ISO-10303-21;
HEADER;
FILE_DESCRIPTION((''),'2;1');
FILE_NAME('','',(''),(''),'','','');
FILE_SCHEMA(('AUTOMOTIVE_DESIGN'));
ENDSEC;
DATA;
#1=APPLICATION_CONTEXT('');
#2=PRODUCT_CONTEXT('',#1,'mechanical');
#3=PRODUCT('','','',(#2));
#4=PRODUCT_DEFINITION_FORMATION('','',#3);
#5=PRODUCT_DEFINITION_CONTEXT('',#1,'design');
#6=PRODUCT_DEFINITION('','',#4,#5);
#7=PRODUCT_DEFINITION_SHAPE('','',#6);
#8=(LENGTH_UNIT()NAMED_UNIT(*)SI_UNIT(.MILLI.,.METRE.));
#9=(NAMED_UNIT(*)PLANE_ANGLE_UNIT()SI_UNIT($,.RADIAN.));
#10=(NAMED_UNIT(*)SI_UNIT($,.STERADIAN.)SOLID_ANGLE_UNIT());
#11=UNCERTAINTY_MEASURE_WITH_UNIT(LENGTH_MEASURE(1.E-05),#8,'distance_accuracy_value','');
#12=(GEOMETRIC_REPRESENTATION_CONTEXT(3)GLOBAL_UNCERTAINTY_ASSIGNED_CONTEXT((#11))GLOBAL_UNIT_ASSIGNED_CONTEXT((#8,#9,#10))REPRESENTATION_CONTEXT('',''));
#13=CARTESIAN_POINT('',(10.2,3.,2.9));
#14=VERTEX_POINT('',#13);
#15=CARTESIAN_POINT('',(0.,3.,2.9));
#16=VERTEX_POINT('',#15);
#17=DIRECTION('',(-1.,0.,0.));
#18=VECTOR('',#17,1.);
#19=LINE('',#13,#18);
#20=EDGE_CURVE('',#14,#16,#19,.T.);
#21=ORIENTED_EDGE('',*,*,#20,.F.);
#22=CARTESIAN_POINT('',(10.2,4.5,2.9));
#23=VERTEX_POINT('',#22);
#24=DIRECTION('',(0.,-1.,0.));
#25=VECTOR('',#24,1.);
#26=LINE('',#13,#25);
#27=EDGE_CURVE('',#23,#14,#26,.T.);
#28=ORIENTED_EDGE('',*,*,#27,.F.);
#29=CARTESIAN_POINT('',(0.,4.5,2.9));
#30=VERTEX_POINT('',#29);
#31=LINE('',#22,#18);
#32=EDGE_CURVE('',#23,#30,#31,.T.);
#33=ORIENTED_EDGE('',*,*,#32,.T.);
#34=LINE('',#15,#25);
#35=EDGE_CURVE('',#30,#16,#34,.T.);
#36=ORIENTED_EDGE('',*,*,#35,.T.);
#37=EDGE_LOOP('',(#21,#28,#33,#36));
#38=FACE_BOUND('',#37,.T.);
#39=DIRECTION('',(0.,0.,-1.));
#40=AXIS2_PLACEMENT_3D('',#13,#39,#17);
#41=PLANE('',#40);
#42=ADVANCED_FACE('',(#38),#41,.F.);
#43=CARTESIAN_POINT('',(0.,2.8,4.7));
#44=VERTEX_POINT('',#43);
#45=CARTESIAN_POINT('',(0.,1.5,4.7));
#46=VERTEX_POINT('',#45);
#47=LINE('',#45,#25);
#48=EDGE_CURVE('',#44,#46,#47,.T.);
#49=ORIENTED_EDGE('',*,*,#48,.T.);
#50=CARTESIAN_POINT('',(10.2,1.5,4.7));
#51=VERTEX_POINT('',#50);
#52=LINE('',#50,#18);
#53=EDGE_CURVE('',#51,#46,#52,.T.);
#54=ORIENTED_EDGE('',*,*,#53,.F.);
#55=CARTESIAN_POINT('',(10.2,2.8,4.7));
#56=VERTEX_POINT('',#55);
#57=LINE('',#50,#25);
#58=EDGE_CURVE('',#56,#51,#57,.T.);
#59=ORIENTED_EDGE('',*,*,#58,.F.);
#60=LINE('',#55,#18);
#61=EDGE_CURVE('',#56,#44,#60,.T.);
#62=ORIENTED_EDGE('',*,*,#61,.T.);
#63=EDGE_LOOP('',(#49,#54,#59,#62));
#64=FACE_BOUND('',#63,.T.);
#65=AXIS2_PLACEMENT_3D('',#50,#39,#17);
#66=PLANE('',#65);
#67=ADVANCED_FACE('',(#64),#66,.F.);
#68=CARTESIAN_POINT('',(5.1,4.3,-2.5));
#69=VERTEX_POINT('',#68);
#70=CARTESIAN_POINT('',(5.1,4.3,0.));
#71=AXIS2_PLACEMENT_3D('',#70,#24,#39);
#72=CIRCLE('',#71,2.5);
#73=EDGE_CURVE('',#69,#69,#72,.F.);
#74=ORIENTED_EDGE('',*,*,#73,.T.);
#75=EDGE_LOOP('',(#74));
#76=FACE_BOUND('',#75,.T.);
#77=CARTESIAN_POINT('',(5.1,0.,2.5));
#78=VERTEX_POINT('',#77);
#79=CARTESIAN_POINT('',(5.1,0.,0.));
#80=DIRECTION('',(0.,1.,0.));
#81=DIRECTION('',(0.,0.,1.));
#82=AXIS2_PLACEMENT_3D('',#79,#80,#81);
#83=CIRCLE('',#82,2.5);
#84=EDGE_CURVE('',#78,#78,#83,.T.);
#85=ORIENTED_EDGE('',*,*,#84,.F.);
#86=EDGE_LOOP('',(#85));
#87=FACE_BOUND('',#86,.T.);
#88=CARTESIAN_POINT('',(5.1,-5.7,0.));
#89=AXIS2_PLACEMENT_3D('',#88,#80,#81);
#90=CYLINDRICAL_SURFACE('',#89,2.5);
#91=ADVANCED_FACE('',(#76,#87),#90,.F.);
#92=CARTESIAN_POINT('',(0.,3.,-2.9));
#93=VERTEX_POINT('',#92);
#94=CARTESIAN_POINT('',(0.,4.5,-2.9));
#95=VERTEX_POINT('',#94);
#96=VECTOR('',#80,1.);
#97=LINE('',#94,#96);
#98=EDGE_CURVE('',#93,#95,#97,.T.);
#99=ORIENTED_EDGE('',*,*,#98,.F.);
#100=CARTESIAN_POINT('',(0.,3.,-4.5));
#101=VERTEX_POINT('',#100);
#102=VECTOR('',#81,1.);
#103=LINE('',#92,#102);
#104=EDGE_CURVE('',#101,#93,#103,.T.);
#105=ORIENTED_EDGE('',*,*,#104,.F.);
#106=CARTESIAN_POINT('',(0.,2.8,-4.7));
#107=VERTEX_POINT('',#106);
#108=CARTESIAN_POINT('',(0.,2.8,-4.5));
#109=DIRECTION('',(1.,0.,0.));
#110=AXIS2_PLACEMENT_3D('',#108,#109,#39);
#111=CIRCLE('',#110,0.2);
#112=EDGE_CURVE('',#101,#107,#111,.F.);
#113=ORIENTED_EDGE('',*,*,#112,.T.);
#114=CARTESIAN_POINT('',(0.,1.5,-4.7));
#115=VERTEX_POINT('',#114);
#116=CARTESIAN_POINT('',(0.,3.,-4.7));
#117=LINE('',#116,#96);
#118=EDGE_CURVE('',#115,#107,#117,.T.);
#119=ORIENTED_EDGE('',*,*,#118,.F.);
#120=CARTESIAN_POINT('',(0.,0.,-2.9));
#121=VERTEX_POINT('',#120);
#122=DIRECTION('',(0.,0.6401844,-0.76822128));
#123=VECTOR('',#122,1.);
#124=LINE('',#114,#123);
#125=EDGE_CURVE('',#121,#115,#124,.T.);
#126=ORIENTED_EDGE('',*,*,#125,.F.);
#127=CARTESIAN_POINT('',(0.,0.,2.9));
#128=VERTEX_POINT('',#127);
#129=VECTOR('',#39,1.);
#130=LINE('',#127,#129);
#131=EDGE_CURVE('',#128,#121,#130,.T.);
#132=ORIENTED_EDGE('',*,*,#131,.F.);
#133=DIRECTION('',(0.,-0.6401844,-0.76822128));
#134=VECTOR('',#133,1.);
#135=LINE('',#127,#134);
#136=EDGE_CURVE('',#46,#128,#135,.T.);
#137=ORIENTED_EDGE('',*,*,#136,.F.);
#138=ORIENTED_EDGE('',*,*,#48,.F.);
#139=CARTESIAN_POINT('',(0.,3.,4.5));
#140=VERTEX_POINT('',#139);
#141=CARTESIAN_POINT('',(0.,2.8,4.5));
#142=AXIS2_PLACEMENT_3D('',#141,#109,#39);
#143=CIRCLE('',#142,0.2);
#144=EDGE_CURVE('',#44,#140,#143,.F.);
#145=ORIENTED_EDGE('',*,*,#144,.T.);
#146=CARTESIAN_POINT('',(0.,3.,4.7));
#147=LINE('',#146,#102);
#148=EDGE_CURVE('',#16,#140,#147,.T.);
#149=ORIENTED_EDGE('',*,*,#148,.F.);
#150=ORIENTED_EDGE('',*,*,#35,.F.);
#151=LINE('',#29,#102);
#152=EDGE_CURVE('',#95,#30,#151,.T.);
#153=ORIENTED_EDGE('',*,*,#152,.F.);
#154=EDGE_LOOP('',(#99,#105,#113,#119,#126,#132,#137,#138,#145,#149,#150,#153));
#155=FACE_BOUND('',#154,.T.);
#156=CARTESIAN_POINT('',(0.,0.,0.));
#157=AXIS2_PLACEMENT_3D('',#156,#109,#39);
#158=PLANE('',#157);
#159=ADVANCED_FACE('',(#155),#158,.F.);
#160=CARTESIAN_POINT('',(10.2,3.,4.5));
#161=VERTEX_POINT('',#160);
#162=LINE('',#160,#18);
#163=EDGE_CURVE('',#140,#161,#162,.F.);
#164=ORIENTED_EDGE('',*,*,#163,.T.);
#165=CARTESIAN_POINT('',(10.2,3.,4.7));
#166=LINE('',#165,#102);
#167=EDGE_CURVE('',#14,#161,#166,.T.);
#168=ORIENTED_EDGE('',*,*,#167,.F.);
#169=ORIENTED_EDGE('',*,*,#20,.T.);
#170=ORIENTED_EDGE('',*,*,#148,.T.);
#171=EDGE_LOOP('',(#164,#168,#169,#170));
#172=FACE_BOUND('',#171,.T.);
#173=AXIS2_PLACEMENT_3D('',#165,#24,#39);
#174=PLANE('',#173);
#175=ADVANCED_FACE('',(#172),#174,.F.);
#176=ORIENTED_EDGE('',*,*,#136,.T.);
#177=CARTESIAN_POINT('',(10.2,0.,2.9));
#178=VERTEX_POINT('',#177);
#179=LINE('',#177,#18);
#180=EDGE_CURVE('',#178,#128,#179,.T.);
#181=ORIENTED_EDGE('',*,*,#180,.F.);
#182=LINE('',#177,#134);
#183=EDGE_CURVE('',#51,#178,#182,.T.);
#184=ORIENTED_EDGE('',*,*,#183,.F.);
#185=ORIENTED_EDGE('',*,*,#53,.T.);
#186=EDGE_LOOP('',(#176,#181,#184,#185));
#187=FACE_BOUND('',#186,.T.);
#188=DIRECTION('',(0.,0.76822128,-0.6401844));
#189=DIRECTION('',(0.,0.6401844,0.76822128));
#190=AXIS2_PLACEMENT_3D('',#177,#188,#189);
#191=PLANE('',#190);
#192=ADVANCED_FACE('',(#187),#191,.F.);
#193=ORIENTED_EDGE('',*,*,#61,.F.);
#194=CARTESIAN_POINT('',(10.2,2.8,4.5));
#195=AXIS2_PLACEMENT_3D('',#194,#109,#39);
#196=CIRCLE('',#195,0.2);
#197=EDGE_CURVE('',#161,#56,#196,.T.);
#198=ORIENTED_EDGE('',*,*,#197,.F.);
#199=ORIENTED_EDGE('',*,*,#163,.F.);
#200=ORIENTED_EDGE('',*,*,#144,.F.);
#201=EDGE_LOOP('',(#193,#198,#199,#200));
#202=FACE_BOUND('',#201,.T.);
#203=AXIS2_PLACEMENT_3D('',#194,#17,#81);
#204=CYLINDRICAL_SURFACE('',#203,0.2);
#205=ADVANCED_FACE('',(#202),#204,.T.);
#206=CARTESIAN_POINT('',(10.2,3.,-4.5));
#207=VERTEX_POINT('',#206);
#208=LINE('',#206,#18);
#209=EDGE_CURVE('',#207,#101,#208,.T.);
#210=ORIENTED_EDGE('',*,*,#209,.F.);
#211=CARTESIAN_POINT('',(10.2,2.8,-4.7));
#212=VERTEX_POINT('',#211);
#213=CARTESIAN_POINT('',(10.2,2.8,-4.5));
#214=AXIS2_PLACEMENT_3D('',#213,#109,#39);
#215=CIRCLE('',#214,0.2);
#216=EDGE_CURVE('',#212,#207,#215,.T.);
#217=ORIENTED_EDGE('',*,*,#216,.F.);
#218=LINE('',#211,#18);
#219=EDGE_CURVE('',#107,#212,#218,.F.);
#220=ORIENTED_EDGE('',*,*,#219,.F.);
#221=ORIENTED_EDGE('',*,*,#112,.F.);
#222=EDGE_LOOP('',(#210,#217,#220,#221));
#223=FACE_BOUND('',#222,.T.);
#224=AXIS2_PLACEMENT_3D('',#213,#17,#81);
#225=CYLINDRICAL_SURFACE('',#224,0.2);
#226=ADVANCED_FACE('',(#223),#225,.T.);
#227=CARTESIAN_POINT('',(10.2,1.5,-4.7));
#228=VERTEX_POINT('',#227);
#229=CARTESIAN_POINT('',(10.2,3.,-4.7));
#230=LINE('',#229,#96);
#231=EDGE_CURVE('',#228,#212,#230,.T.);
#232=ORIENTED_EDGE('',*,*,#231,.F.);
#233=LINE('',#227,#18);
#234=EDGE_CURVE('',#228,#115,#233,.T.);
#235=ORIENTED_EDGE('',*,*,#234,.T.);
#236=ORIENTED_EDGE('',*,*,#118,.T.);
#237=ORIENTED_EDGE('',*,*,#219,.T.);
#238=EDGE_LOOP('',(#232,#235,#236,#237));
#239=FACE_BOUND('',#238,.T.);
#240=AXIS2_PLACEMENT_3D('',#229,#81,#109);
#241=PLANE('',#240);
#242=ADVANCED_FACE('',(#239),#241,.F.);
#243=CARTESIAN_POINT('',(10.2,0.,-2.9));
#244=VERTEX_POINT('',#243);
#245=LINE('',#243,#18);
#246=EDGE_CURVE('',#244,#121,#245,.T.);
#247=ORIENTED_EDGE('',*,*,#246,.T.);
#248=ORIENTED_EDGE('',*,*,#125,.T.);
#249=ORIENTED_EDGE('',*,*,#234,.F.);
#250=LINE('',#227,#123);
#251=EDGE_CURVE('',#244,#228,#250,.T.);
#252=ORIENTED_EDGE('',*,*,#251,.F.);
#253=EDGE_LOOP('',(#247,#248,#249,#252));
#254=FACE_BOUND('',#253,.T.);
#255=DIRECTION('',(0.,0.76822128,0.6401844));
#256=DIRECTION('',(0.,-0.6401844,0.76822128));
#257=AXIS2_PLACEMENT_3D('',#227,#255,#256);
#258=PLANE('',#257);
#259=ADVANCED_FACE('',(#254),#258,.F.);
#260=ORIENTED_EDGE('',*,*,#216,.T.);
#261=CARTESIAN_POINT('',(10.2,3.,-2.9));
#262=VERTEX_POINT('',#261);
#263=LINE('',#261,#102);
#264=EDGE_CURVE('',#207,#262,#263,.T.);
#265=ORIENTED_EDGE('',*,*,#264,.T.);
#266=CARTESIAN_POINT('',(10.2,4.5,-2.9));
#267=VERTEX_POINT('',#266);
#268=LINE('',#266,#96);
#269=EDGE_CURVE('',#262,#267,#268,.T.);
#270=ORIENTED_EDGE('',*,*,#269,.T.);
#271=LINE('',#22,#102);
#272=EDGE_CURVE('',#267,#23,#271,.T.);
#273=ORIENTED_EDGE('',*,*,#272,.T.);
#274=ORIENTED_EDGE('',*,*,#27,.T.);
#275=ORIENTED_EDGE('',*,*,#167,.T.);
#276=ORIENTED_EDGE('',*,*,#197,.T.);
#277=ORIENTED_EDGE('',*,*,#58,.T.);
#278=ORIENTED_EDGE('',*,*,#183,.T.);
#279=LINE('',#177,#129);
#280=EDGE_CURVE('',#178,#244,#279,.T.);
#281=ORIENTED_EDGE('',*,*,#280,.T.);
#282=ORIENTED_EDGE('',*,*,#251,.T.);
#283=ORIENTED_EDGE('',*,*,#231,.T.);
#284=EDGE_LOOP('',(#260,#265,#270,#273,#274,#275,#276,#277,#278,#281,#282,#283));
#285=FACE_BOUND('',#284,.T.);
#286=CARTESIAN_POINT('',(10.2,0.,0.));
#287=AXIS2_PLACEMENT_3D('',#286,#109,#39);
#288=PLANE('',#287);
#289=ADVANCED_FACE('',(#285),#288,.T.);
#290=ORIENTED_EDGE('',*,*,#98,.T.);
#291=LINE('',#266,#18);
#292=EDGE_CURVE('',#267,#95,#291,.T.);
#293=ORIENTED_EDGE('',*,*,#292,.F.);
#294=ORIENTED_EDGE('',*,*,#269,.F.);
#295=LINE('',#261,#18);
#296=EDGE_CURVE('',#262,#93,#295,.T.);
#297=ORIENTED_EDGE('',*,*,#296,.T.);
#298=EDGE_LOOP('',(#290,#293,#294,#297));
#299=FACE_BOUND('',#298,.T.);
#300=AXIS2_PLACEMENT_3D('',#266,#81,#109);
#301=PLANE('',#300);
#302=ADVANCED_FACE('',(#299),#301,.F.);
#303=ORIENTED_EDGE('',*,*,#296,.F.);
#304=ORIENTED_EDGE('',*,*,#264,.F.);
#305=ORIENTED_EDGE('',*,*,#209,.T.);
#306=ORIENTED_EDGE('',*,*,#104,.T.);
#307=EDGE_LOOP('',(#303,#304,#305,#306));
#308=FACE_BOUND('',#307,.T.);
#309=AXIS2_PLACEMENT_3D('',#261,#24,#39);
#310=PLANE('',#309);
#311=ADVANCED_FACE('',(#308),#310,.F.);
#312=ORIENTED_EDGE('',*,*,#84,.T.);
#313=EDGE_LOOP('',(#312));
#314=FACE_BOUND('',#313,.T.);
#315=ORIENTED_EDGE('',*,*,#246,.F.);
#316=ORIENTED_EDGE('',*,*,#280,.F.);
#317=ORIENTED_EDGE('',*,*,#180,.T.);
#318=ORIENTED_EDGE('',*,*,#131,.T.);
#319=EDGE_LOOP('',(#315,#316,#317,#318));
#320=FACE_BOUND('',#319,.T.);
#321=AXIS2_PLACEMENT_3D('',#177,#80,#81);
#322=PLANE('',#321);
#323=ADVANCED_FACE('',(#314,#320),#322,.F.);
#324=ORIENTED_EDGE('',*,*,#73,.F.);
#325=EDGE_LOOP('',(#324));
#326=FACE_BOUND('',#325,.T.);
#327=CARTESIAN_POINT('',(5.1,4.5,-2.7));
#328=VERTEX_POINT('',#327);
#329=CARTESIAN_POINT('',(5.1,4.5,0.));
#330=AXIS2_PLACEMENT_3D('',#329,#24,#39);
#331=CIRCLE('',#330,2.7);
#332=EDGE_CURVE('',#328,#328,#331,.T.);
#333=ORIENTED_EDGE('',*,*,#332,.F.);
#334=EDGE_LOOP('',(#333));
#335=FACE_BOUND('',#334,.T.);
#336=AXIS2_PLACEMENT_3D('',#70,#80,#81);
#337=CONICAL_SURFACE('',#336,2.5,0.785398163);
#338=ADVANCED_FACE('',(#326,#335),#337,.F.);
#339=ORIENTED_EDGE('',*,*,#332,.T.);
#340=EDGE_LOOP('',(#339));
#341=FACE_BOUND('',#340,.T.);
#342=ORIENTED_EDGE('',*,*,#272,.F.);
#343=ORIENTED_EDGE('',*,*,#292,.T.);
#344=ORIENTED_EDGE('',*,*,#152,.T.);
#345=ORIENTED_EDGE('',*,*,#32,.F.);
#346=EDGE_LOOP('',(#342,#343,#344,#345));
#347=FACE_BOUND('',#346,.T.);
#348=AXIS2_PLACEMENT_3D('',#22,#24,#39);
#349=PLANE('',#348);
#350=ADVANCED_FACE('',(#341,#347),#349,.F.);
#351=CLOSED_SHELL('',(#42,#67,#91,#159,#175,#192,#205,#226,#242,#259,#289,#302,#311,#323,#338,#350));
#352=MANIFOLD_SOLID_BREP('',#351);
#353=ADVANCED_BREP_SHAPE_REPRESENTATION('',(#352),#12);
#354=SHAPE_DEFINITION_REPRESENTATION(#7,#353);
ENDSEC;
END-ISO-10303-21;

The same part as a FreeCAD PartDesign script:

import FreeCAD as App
import Part
import Sketcher


def edges_at(feature, points):
    """Names of the edges that pass closest to the given points."""
    edges = feature.Shape.Edges
    near = lambda p: min(range(len(edges)), key=lambda i: edges[i].distToShape(Part.Vertex(*p))[0])
    return sorted({f"Edge{near(p) + 1}" for p in points})

doc = App.newDocument("Part")
params = doc.addObject("Spreadsheet::Sheet", "Params")
for row, (alias, value) in enumerate([
    ("sketch1_width", "1.5 mm"),
    ("sketch1_height", "5.8 mm"),
    ("sketch1_height2", "1.8 mm"),
    ("pad1_length", "10.2 mm"),
    ("sketch2_diameter", "5 mm"),
    ("pocket1_length", "10.2 mm"),
    ("chamfer_size", "0.2 mm"),
    ("fillet_radius", "0.2 mm"),
], start=1):
    params.set(f"A{row}", alias)
    params.set(f"B{row}", "=" + value)
    params.setAlias(f"B{row}", alias)

body = doc.addObject("PartDesign::Body", "Body")

sketch1 = body.newObject("Sketcher::SketchObject", "Sketch")
sketch1.AttachmentSupport = (doc.getObject("YZ_Plane"), [""])
sketch1.MapMode = "FlatFace"
sketch1.addGeometry(Part.LineSegment(App.Vector(0, 2.9, 0), App.Vector(0, -2.9, 0)), False)
sketch1.addGeometry(Part.LineSegment(App.Vector(0, -2.9, 0), App.Vector(1.5, -4.7, 0)), False)
sketch1.addGeometry(Part.LineSegment(App.Vector(1.5, -4.7, 0), App.Vector(3, -4.7, 0)), False)
sketch1.addGeometry(Part.LineSegment(App.Vector(3, -4.7, 0), App.Vector(3, -2.9, 0)), False)
sketch1.addGeometry(Part.LineSegment(App.Vector(3, -2.9, 0), App.Vector(4.5, -2.9, 0)), False)
sketch1.addGeometry(Part.LineSegment(App.Vector(4.5, -2.9, 0), App.Vector(4.5, 2.9, 0)), False)
sketch1.addGeometry(Part.LineSegment(App.Vector(4.5, 2.9, 0), App.Vector(3, 2.9, 0)), False)
sketch1.addGeometry(Part.LineSegment(App.Vector(3, 2.9, 0), App.Vector(3, 4.7, 0)), False)
sketch1.addGeometry(Part.LineSegment(App.Vector(3, 4.7, 0), App.Vector(1.5, 4.7, 0)), False)
sketch1.addGeometry(Part.LineSegment(App.Vector(1.5, 4.7, 0), App.Vector(0, 2.9, 0)), False)
sketch1.addConstraint(Sketcher.Constraint("Coincident", 0, 2, 1, 1))
sketch1.addConstraint(Sketcher.Constraint("Coincident", 1, 2, 2, 1))
sketch1.addConstraint(Sketcher.Constraint("Coincident", 2, 2, 3, 1))
sketch1.addConstraint(Sketcher.Constraint("Coincident", 3, 2, 4, 1))
sketch1.addConstraint(Sketcher.Constraint("Coincident", 4, 2, 5, 1))
sketch1.addConstraint(Sketcher.Constraint("Coincident", 5, 2, 6, 1))
sketch1.addConstraint(Sketcher.Constraint("Coincident", 6, 2, 7, 1))
sketch1.addConstraint(Sketcher.Constraint("Coincident", 7, 2, 8, 1))
sketch1.addConstraint(Sketcher.Constraint("Coincident", 8, 2, 9, 1))
sketch1.addConstraint(Sketcher.Constraint("Coincident", 9, 2, 0, 1))
sketch1.addConstraint(Sketcher.Constraint("Vertical", 0))
sketch1.addConstraint(Sketcher.Constraint("Horizontal", 2))
sketch1.addConstraint(Sketcher.Constraint("Vertical", 3))
sketch1.addConstraint(Sketcher.Constraint("Horizontal", 4))
sketch1.addConstraint(Sketcher.Constraint("Vertical", 5))
sketch1.addConstraint(Sketcher.Constraint("Horizontal", 6))
sketch1.addConstraint(Sketcher.Constraint("Vertical", 7))
sketch1.addConstraint(Sketcher.Constraint("Horizontal", 8))
sketch1.addConstraint(Sketcher.Constraint("Symmetric", 0, 2, 9, 2, -1, 1))
sketch1.addConstraint(Sketcher.Constraint("Symmetric", 3, 2, 6, 2, -1))
sketch1.addConstraint(Sketcher.Constraint("Symmetric", 1, 2, 8, 2, -1))
sketch1.addConstraint(Sketcher.Constraint("Horizontal", 0, 2, 3, 2))
sketch1.addConstraint(Sketcher.Constraint("Equal", 2, 4))
sketch1.addConstraint(Sketcher.Constraint("DistanceX", 2, 1, 2, 2, 1.5))
sketch1.addConstraint(Sketcher.Constraint("DistanceY", 0, 2, 0, 1, 5.8))
sketch1.addConstraint(Sketcher.Constraint("DistanceY", 3, 1, 3, 2, 1.8))
sketch1.addConstraint(Sketcher.Constraint("DistanceX", -1, 1, 2, 2, 3.0))
sketch1.setExpression("Constraints[23]", "Params.sketch1_width")
sketch1.setExpression("Constraints[24]", "Params.sketch1_height")
sketch1.setExpression("Constraints[25]", "Params.sketch1_height2")
pad1 = body.newObject("PartDesign::Pad", "Pad")
pad1.Profile = sketch1
pad1.setExpression("Length", "Params.pad1_length")

sketch2 = body.newObject("Sketcher::SketchObject", "Sketch001")
sketch2.AttachmentSupport = (doc.getObject("XZ_Plane"), [""])
sketch2.MapMode = "FlatFace"
sketch2.AttachmentOffset = App.Placement(App.Vector(0, 0, -4.5), App.Rotation())
sketch2.addGeometry(Part.Circle(App.Vector(5.1, 0, 0), App.Vector(0, 0, 1), 2.5), False)
sketch2.addConstraint(Sketcher.Constraint("PointOnObject", 0, 3, -1))
sketch2.addConstraint(Sketcher.Constraint("Diameter", 0, 5.0))
sketch2.addConstraint(Sketcher.Constraint("DistanceX", -1, 1, 0, 3, 5.1))
sketch2.setExpression("Constraints[1]", "Params.sketch2_diameter")
pocket1 = body.newObject("PartDesign::Pocket", "Pocket")
pocket1.Profile = sketch2
pocket1.setExpression("Length", "Params.pocket1_length")
pocket1.Reversed = True
doc.recompute()

chamfer = body.newObject("PartDesign::Chamfer", "Chamfer")
chamfer.Base = (pocket1, edges_at(pocket1, [(2.6, 4.5, 0)]))
chamfer.setExpression("Size", "Params.chamfer_size")
doc.recompute()

fillet = body.newObject("PartDesign::Fillet", "Fillet")
fillet.Base = (chamfer, edges_at(chamfer, [(5.1, 3, 4.7), (5.1, 3, -4.7)]))
fillet.setExpression("Radius", "Params.fillet_radius")

doc.recompute()
